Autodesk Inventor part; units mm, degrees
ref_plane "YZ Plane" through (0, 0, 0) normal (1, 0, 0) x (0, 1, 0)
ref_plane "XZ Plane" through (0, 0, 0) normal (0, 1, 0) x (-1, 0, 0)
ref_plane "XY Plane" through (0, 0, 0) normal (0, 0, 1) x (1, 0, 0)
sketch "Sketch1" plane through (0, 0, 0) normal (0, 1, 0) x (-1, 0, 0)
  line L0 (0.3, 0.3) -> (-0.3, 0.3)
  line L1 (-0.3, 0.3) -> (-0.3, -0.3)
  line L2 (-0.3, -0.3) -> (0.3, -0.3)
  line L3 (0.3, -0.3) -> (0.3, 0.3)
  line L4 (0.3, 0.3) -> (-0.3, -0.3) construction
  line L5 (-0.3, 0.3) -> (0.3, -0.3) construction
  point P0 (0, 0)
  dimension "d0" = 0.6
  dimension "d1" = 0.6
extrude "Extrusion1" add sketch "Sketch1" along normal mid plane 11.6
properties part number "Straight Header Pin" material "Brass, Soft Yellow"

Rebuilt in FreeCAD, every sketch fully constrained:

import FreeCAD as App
import Part
import Sketcher

V = App.Vector
Q = App.Units.Quantity

doc = App.newDocument("Part")
params = doc.addObject("Spreadsheet::Sheet", "Params")
for row, (alias, value) in enumerate([
    ("sketch1_width", "0.6 mm"),
    ("pad1_length", "11.6 mm"),
], start=1):
    params.set(f"A{row}", alias)
    params.set(f"B{row}", "=" + value)
    params.setAlias(f"B{row}", alias)

body = doc.addObject("PartDesign::Body", "Body")

# Sketch on XZ plane
sketch1 = body.newObject("Sketcher::SketchObject", "Sketch")
sketch1.AttachmentSupport = (doc.getObject("XZ_Plane"), [""])
sketch1.MapMode = "FlatFace"
sketch1.addGeometry(Part.LineSegment(V(-0.3, -0.3, 0), V(-0.3, 0.3, 0)), False)
sketch1.addGeometry(Part.LineSegment(V(-0.3, 0.3, 0), V(0.3, 0.3, 0)), False)
sketch1.addGeometry(Part.LineSegment(V(0.3, 0.3, 0), V(0.3, -0.3, 0)), False)
sketch1.addGeometry(Part.LineSegment(V(0.3, -0.3, 0), V(-0.3, -0.3, 0)), False)
sketch1.addConstraint(Sketcher.Constraint("Coincident", 0, 2, 1, 1))
sketch1.addConstraint(Sketcher.Constraint("Coincident", 1, 2, 2, 1))
sketch1.addConstraint(Sketcher.Constraint("Coincident", 2, 2, 3, 1))
sketch1.addConstraint(Sketcher.Constraint("Coincident", 3, 2, 0, 1))
sketch1.addConstraint(Sketcher.Constraint("Vertical", 0))
sketch1.addConstraint(Sketcher.Constraint("Horizontal", 1))
sketch1.addConstraint(Sketcher.Constraint("Vertical", 2))
sketch1.addConstraint(Sketcher.Constraint("Horizontal", 3))
sketch1.addConstraint(Sketcher.Constraint("Symmetric", 0, 2, 2, 2, -1, 1))
sketch1.addConstraint(Sketcher.Constraint("Equal", 3, 0))
sketch1.addConstraint(Sketcher.Constraint("DistanceX", 1, 1, 1, 2, Q("0.6 mm")))
sketch1.setExpression("Constraints[10]", "Params.sketch1_width")
pad1 = body.newObject("PartDesign::Pad", "Pad")
pad1.Profile = sketch1
pad1.setExpression("Length", "Params.pad1_length")
pad1.Midplane = True

doc.recompute()
